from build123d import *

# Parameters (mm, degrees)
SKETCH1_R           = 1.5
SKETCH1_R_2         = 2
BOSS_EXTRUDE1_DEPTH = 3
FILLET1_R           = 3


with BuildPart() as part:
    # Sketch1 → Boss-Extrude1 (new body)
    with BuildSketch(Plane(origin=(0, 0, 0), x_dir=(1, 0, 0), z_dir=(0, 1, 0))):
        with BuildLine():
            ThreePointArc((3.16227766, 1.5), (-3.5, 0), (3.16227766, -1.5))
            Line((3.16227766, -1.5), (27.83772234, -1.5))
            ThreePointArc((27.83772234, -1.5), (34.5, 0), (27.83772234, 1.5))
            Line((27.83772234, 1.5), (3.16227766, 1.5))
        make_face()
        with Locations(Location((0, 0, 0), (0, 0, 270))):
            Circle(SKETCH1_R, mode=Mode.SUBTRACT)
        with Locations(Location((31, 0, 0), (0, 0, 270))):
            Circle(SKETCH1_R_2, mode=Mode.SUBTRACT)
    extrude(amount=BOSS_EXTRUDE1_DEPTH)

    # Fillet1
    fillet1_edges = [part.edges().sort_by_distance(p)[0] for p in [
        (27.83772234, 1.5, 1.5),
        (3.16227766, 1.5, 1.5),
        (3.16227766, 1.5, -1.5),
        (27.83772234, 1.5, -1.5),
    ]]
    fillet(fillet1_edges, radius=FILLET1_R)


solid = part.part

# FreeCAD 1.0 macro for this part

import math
import FreeCAD as App
import Part
import Sketcher
from FreeCAD import Vector
Q = App.Units.Quantity


def edges_at(feature, points):
    """Names of the edges that pass closest to the given points."""
    edges = feature.Shape.Edges
    near = lambda p: min(range(len(edges)), key=lambda i: edges[i].distToShape(Part.Vertex(*p))[0])
    return sorted({f"Edge{near(p) + 1}" for p in points})

doc = App.newDocument("Part")
params = doc.addObject("Spreadsheet::Sheet", "Params")
for row, (alias, value) in enumerate([
    ("sketch1_diameter", "3 mm"),
    ("sketch1_diameter2", "4 mm"),
    ("sketch1_radius", "3.5 mm"),
    ("pad1_length", "3 mm"),
    ("fillet_radius", "3 mm"),
], start=1):
    params.set(f"A{row}", alias)
    params.set(f"B{row}", "=" + value)
    params.setAlias(f"B{row}", alias)

body = doc.addObject("PartDesign::Body", "Body")

sketch1 = doc.addObject("Sketcher::SketchObject", "Sketch")
body.addObject(sketch1)
sketch1.AttachmentSupport = (doc.XZ_Plane, [""])
sketch1.MapMode = "FlatFace"
sketch1.addGeometry(Part.ArcOfCircle(Part.Circle(Vector(0, 0, 0), Vector(0, 0, 1), 3.5), math.radians(25.376934), math.radians(334.623066)), False)
sketch1.addGeometry(Part.LineSegment(Vector(3.162278, 1.5, 0), Vector(27.837722, 1.5, 0)), False)
sketch1.addGeometry(Part.ArcOfCircle(Part.Circle(Vector(31, 0, 0), Vector(0, 0, 1), 3.5), math.radians(-154.623066), math.radians(154.623066)), False)
sketch1.addGeometry(Part.LineSegment(Vector(27.837722, -1.5, 0), Vector(3.162278, -1.5, 0)), False)
sketch1.addGeometry(Part.Circle(Vector(0, 0, 0), Vector(0, 0, 1), 1.5), False)
sketch1.addGeometry(Part.Circle(Vector(31, 0, 0), Vector(0, 0, 1), 2), False)
sketch1.addConstraint(Sketcher.Constraint("Coincident", 0, 1, 1, 1))
sketch1.addConstraint(Sketcher.Constraint("Coincident", 1, 2, 2, 2))
sketch1.addConstraint(Sketcher.Constraint("Coincident", 2, 1, 3, 1))
sketch1.addConstraint(Sketcher.Constraint("Coincident", 3, 2, 0, 2))
sketch1.addConstraint(Sketcher.Constraint("Horizontal", 1))
sketch1.addConstraint(Sketcher.Constraint("Horizontal", 3))
sketch1.addConstraint(Sketcher.Constraint("Coincident", 0, 3, -1, 1))
sketch1.addConstraint(Sketcher.Constraint("Coincident", 4, 3, -1, 1))
sketch1.addConstraint(Sketcher.Constraint("Coincident", 5, 3, 2, 3))
sketch1.addConstraint(Sketcher.Constraint("Equal", 0, 2))
sketch1.addConstraint(Sketcher.Constraint("Symmetric", 1, 2, 2, 1, -1))
sketch1.addConstraint(Sketcher.Constraint("Diameter", 4, Q("3 mm")))
sketch1.addConstraint(Sketcher.Constraint("Diameter", 5, Q("4 mm")))
sketch1.addConstraint(Sketcher.Constraint("Radius", 0, Q("3.5 mm")))
sketch1.addConstraint(Sketcher.Constraint("DistanceX", -1, 1, 2, 3, Q("31 mm")))
sketch1.addConstraint(Sketcher.Constraint("DistanceY", 2, 1, 1, 2, Q("3 mm")))
sketch1.setExpression("Constraints[11]", "Params.sketch1_diameter")
sketch1.setExpression("Constraints[12]", "Params.sketch1_diameter2")
sketch1.setExpression("Constraints[13]", "Params.sketch1_radius")
pad1 = doc.addObject("PartDesign::Pad", "Pad")
body.addObject(pad1)
pad1.Profile = sketch1
pad1.setExpression("Length", "Params.pad1_length")
pad1.Reversed = True
doc.recompute()

fillet = doc.addObject("PartDesign::Fillet", "Fillet")
body.addObject(fillet)
fillet.Base = (pad1, edges_at(pad1, [
    (27.838, 1.5, 1.5),
    (3.162, 1.5, 1.5),
    (3.162, 1.5, -1.5),
    (27.838, 1.5, -1.5),
]))
fillet.setExpression("Radius", "Params.fillet_radius")

doc.recompute()
